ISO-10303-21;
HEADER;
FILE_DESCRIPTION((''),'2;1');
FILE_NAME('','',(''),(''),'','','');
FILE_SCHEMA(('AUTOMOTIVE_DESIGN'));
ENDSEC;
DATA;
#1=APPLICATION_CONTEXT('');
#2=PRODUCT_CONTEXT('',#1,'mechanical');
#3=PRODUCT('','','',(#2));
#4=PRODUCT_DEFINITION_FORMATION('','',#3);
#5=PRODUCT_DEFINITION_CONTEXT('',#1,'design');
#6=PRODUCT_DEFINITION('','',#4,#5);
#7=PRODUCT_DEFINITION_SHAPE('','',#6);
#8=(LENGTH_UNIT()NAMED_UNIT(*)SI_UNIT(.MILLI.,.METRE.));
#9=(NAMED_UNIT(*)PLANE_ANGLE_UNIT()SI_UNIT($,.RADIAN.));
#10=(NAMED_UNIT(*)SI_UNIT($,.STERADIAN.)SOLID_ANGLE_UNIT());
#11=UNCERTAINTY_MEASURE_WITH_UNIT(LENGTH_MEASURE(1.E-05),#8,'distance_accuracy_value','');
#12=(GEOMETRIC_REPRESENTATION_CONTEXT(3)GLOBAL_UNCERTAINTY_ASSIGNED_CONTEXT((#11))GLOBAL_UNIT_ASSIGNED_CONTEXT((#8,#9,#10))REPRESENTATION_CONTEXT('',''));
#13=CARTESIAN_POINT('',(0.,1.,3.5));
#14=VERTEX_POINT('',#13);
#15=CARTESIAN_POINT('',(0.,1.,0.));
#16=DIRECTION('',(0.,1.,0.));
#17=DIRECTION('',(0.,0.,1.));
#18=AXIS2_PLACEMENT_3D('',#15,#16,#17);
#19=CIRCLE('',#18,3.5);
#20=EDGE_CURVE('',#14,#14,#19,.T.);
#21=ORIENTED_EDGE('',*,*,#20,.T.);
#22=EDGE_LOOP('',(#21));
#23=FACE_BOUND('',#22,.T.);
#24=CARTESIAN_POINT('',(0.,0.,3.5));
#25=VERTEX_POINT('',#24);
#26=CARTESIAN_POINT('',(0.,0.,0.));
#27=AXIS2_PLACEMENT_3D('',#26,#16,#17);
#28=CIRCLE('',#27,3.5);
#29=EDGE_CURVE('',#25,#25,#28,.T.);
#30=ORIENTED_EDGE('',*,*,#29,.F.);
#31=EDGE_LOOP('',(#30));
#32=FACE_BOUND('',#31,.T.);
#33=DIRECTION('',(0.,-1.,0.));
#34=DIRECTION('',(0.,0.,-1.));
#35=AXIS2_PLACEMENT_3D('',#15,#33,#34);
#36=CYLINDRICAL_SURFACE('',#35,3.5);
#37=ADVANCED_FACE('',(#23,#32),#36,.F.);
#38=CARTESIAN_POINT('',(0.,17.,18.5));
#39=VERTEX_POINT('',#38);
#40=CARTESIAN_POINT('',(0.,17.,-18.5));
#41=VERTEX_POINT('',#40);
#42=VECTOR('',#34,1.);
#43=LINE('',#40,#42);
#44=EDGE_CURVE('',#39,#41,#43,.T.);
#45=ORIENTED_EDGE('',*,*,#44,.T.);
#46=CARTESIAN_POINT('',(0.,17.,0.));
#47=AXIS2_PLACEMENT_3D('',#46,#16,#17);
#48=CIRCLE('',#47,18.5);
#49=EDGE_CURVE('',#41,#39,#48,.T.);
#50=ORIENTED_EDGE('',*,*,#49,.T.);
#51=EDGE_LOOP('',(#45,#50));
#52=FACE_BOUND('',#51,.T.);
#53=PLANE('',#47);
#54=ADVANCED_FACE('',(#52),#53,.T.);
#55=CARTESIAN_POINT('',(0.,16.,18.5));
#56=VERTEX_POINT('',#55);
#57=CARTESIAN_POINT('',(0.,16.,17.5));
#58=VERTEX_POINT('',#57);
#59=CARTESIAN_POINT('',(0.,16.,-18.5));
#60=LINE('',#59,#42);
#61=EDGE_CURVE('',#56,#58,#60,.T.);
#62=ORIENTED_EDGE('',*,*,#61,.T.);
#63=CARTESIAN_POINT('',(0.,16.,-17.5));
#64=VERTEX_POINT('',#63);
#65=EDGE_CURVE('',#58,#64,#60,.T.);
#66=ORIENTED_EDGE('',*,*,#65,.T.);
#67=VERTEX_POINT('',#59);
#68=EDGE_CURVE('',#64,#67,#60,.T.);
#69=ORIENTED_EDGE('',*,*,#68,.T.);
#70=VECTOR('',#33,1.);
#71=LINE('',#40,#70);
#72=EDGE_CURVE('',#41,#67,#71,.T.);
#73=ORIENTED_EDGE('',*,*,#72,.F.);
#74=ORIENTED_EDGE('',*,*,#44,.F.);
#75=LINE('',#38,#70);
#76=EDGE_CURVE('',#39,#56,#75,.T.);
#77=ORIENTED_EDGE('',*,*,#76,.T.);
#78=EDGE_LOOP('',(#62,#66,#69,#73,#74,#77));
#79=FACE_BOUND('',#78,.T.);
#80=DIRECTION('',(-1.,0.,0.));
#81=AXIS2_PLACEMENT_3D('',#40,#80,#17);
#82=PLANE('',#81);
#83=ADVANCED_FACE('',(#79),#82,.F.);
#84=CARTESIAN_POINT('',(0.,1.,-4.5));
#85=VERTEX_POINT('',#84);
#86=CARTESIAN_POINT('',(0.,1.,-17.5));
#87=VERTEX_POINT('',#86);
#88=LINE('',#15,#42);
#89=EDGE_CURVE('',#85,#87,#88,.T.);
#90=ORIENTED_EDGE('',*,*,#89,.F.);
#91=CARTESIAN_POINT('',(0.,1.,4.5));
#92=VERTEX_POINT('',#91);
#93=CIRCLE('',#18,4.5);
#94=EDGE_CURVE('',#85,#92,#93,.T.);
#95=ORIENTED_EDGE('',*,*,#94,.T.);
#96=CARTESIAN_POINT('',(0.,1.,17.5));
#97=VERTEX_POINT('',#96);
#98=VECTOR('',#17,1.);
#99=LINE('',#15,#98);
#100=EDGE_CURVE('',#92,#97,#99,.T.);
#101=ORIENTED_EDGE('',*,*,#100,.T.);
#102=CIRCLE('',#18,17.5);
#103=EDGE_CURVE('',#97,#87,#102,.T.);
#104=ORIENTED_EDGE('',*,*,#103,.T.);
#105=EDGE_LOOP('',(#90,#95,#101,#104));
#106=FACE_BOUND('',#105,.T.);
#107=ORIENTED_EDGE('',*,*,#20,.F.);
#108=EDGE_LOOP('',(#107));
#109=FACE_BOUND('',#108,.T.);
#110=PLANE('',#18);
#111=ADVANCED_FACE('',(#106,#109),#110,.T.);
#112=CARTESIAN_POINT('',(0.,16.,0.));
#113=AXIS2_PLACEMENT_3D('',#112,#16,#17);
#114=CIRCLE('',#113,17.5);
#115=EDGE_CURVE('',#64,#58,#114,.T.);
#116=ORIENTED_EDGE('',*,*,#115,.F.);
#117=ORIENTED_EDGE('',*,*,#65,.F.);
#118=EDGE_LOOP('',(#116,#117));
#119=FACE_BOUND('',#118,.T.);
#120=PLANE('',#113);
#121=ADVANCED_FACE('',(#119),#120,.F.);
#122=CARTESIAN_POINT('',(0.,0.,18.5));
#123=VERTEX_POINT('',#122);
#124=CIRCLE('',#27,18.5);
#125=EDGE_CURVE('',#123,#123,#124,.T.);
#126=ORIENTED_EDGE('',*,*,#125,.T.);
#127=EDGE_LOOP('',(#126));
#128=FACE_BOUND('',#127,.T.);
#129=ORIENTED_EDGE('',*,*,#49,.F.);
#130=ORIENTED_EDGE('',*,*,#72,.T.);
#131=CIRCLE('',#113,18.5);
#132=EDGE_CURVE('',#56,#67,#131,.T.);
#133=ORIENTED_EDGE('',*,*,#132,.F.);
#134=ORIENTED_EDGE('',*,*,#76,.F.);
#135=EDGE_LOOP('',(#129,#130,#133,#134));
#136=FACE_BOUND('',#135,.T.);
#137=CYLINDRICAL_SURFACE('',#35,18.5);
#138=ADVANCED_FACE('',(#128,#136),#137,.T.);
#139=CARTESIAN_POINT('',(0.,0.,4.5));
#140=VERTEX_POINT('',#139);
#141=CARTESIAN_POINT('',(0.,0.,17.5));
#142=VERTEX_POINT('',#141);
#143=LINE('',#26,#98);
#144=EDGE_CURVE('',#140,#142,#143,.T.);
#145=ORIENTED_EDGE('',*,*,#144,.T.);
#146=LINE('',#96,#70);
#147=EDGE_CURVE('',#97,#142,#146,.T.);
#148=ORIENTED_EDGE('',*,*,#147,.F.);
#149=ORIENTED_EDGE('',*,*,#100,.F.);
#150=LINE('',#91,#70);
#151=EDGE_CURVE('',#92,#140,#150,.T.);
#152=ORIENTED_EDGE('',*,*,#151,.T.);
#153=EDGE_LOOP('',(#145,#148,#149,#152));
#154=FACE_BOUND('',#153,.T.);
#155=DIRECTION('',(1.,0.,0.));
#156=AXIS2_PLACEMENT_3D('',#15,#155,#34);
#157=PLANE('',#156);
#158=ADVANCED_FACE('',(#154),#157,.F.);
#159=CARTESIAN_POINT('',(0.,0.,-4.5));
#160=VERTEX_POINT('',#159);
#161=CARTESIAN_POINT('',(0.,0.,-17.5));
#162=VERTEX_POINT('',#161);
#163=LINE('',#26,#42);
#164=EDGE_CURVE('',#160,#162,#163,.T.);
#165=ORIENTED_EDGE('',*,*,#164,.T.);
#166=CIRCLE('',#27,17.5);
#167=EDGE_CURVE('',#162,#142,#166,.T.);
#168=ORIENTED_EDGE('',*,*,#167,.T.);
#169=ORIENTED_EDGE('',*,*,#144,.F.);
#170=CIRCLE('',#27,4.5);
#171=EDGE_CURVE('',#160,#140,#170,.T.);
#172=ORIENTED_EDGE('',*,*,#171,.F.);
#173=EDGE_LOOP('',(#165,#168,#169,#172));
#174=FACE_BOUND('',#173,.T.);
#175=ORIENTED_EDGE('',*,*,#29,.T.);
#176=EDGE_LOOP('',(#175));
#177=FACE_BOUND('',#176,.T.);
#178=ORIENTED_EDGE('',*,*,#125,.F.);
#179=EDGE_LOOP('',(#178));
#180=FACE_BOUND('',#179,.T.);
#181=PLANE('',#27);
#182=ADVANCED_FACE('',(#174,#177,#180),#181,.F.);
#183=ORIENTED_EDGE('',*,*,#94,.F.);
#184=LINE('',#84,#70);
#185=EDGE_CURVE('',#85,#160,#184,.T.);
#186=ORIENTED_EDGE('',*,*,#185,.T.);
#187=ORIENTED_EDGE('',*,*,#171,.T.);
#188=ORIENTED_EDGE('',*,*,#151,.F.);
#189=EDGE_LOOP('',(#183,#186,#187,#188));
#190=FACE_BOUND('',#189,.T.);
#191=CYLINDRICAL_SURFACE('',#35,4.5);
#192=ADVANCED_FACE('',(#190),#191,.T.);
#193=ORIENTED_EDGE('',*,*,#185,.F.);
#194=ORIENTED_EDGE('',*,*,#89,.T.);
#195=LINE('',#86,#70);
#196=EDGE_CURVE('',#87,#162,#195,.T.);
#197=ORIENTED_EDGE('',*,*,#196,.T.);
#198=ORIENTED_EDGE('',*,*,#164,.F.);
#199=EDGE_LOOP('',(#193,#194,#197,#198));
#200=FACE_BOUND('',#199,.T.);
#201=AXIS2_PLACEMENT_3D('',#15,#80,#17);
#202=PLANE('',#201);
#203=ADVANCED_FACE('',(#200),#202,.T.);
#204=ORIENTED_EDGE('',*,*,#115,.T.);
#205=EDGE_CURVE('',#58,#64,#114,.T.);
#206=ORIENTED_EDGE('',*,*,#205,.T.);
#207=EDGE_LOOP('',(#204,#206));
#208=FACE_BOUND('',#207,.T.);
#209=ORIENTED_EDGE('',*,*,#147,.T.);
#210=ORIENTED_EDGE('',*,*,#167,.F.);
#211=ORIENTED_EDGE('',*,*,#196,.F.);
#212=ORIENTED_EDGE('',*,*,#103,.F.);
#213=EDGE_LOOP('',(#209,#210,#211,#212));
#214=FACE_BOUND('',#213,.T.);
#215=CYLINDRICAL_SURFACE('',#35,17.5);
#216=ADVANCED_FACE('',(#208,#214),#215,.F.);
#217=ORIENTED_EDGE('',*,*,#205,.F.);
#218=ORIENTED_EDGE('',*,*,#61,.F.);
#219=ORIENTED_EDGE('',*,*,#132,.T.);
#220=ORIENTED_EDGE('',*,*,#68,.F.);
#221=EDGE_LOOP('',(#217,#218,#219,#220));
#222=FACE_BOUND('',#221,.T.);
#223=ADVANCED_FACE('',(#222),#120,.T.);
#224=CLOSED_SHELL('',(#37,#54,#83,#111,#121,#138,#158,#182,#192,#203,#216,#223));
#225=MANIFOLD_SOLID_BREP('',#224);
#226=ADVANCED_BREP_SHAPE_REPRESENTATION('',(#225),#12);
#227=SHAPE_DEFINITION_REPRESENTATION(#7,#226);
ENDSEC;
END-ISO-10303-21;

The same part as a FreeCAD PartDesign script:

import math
import FreeCAD as App
import Part
import Sketcher
Q = App.Units.Quantity

doc = App.newDocument("Part")
body = doc.addObject("PartDesign::Body", "Body")

# Sketch on XZ plane
sketch1 = body.newObject("Sketcher::SketchObject", "Sketch")
sketch1.AttachmentSupport = (doc.getObject("XZ_Plane"), [""])
sketch1.MapMode = "FlatFace"
sketch1.addGeometry(Part.Circle(App.Vector(0, 0, 0), App.Vector(0, 0, 1), 18.5), False)
sketch1.addGeometry(Part.ArcOfCircle(Part.Circle(App.Vector(0, 0, 0), App.Vector(0, 0, 1), 17.5), math.radians(90), math.radians(270)), False)
sketch1.addGeometry(Part.LineSegment(App.Vector(0, -17.5, 0), App.Vector(0, -4.5, 0)), False)
sketch1.addGeometry(Part.ArcOfCircle(Part.Circle(App.Vector(0, 0, 0), App.Vector(0, 0, 1), 4.5), math.radians(90), math.radians(270)), False)
sketch1.addGeometry(Part.LineSegment(App.Vector(0, 4.5, 0), App.Vector(0, 17.5, 0)), False)
sketch1.addGeometry(Part.Circle(App.Vector(0, 0, 0), App.Vector(0, 0, 1), 3.5), False)
sketch1.addConstraint(Sketcher.Constraint("Coincident", 1, 2, 2, 1))
sketch1.addConstraint(Sketcher.Constraint("Coincident", 2, 2, 3, 2))
sketch1.addConstraint(Sketcher.Constraint("Coincident", 3, 1, 4, 1))
sketch1.addConstraint(Sketcher.Constraint("Coincident", 4, 2, 1, 1))
sketch1.addConstraint(Sketcher.Constraint("Vertical", 2))
sketch1.addConstraint(Sketcher.Constraint("Vertical", 4))
sketch1.addConstraint(Sketcher.Constraint("Coincident", 0, 3, -1, 1))
sketch1.addConstraint(Sketcher.Constraint("Coincident", 1, 3, -1, 1))
sketch1.addConstraint(Sketcher.Constraint("Coincident", 3, 3, -1, 1))
sketch1.addConstraint(Sketcher.Constraint("Coincident", 5, 3, -1, 1))
sketch1.addConstraint(Sketcher.Constraint("PointOnObject", 1, 2, -2))
sketch1.addConstraint(Sketcher.Constraint("PointOnObject", 3, 1, -2))
sketch1.addConstraint(Sketcher.Constraint("Diameter", 0, Q("37 mm")))
sketch1.addConstraint(Sketcher.Constraint("Diameter", 5, Q("7 mm")))
sketch1.addConstraint(Sketcher.Constraint("Radius", 1, Q("17.5 mm")))
sketch1.addConstraint(Sketcher.Constraint("Radius", 3, Q("4.5 mm")))
pad1 = body.newObject("PartDesign::Pad", "Pad")
pad1.Profile = sketch1
pad1.Length = 1
pad1.Reversed = True

# Sketch on XZ plane
sketch2 = body.newObject("Sketcher::SketchObject", "Sketch001")
sketch2.AttachmentSupport = (doc.getObject("XZ_Plane"), [""])
sketch2.MapMode = "FlatFace"
sketch2.AttachmentOffset = App.Placement(App.Vector(0, 0, -1), App.Rotation())
sketch2.addGeometry(Part.Circle(App.Vector(0, 0, 0), App.Vector(0, 0, 1), 18), False)
sketch2.addGeometry(Part.Circle(App.Vector(0, 0, 0), App.Vector(0, 0, 1), 18), False)
sketch2.addConstraint(Sketcher.Constraint("Coincident", 0, 3, -1, 1))
sketch2.addConstraint(Sketcher.Constraint("Coincident", 1, 3, -1, 1))
sketch2.addConstraint(Sketcher.Constraint("Diameter", 0, Q("37 mm")))
sketch2.addConstraint(Sketcher.Constraint("Diameter", 1, Q("35 mm")))
pad2 = body.newObject("PartDesign::Pad", "Pad001")
pad2.Profile = sketch2
pad2.Length = 15
pad2.Reversed = True

# Sketch on XZ plane
sketch3 = body.newObject("Sketcher::SketchObject", "Sketch002")
sketch3.AttachmentSupport = (doc.getObject("XZ_Plane"), [""])
sketch3.MapMode = "FlatFace"
sketch3.AttachmentOffset = App.Placement(App.Vector(0, 0, -16), App.Rotation())
sketch3.addGeometry(Part.LineSegment(App.Vector(0, 18, 0), App.Vector(0, -18, 0)), False)
sketch3.addGeometry(Part.ArcOfCircle(Part.Circle(App.Vector(0, 0, 0), App.Vector(0, 0, 1), 18), math.radians(90), math.radians(270)), False)
sketch3.addConstraint(Sketcher.Constraint("Coincident", 0, 1, 1, 1))
sketch3.addConstraint(Sketcher.Constraint("Coincident", 1, 2, 0, 2))
sketch3.addConstraint(Sketcher.Constraint("Vertical", 0))
sketch3.addConstraint(Sketcher.Constraint("Coincident", 1, 3, -1, 1))
sketch3.addConstraint(Sketcher.Constraint("PointOnObject", 0, 1, -2))
sketch3.addConstraint(Sketcher.Constraint("Radius", 1, Q("18.5 mm")))
pad3 = body.newObject("PartDesign::Pad", "Pad002")
pad3.Profile = sketch3
pad3.Length = 1
pad3.Reversed = True

doc.recompute()
